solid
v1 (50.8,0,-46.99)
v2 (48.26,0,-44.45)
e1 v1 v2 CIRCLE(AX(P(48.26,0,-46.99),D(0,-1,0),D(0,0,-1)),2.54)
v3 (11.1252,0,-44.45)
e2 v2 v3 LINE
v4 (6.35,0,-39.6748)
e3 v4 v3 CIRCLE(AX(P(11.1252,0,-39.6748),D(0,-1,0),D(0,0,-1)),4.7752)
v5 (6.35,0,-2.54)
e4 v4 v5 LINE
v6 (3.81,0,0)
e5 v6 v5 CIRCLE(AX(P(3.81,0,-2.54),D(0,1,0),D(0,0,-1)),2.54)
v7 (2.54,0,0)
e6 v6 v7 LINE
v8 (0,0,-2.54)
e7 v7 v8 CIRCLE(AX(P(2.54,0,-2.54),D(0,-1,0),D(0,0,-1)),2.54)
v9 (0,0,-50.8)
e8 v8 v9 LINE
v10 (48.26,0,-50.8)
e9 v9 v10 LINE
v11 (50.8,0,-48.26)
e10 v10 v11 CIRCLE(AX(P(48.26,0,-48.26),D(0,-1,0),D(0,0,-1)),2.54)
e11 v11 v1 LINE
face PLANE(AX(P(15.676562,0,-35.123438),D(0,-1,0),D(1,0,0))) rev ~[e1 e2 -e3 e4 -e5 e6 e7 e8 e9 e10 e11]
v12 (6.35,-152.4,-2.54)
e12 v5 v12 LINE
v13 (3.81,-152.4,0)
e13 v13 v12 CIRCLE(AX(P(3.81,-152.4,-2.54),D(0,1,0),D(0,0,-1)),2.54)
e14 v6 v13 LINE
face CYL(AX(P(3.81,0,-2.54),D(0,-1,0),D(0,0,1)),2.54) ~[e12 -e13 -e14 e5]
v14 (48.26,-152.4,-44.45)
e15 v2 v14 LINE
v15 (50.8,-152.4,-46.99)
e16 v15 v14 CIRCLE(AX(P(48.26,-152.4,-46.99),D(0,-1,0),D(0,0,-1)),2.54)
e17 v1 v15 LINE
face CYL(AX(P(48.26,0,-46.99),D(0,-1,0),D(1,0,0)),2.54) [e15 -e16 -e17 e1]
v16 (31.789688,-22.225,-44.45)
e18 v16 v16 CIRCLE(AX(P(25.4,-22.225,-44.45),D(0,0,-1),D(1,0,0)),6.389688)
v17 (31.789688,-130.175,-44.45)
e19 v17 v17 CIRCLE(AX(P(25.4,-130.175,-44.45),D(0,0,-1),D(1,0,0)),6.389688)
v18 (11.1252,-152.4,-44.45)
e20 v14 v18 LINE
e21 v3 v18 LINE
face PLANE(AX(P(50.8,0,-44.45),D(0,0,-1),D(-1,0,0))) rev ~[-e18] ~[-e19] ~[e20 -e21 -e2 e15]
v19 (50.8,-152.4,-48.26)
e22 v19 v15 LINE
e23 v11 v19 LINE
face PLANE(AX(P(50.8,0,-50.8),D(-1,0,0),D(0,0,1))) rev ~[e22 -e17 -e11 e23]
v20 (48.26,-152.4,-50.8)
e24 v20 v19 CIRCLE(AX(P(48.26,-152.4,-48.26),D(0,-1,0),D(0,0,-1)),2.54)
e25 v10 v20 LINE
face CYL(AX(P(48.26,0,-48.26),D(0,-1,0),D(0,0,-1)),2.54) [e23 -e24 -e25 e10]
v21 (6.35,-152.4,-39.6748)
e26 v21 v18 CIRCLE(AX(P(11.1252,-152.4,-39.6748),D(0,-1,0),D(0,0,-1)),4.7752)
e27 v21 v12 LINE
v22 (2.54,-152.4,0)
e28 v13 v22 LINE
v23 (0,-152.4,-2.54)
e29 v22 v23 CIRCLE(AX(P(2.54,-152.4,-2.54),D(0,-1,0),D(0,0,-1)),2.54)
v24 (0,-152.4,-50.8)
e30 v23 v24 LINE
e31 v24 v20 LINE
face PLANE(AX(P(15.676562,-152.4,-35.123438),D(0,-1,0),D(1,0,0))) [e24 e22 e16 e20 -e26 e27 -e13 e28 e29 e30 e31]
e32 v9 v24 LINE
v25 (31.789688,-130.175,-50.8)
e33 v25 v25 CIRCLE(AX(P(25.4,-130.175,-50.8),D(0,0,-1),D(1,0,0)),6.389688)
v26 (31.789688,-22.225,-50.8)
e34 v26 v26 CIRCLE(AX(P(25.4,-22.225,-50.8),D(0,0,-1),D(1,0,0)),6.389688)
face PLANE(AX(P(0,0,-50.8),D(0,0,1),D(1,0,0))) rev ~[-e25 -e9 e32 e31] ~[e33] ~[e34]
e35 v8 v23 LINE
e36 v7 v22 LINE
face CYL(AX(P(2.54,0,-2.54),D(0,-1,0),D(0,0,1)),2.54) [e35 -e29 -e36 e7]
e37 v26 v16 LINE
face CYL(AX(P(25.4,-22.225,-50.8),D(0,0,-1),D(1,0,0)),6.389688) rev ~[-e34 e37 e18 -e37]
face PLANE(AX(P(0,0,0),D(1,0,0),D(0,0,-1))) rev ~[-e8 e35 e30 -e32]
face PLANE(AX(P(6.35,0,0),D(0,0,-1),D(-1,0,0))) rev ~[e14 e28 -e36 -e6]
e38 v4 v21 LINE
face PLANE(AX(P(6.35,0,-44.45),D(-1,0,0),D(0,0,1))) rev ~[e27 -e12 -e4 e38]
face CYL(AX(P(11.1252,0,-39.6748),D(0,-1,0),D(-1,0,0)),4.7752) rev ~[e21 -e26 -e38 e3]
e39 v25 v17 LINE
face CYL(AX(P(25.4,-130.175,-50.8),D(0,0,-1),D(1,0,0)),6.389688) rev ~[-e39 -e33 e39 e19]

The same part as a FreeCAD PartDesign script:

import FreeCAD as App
import Part
import Sketcher
from FreeCAD import Vector
Q = App.Units.Quantity


def edges_at(feature, points):
    """Names of the edges that pass closest to the given points."""
    edges = feature.Shape.Edges
    near = lambda p: min(range(len(edges)), key=lambda i: edges[i].distToShape(Part.Vertex(*p))[0])
    return sorted({f"Edge{near(p) + 1}" for p in points})

doc = App.newDocument("Part")
body = doc.addObject("PartDesign::Body", "Body")

sketch1 = body.newObject("Sketcher::SketchObject", "Sketch")
sketch1.AttachmentSupport = (doc.getObject("XZ_Plane"), [""])
sketch1.MapMode = "FlatFace"
sketch1.addGeometry(Part.LineSegment(Vector(6, 0, 0), Vector(0, 0, 0)), False)
sketch1.addGeometry(Part.LineSegment(Vector(0, 0, 0), Vector(0, -51, 0)), False)
sketch1.addGeometry(Part.LineSegment(Vector(0, -51, 0), Vector(51, -51, 0)), False)
sketch1.addGeometry(Part.LineSegment(Vector(51, -51, 0), Vector(51, -44, 0)), False)
sketch1.addGeometry(Part.LineSegment(Vector(51, -44, 0), Vector(6, -44, 0)), False)
sketch1.addGeometry(Part.LineSegment(Vector(6, -44, 0), Vector(6, 0, 0)), False)
sketch1.addConstraint(Sketcher.Constraint("Coincident", 0, 2, 1, 1))
sketch1.addConstraint(Sketcher.Constraint("Coincident", 1, 2, 2, 1))
sketch1.addConstraint(Sketcher.Constraint("Coincident", 2, 2, 3, 1))
sketch1.addConstraint(Sketcher.Constraint("Coincident", 3, 2, 4, 1))
sketch1.addConstraint(Sketcher.Constraint("Coincident", 4, 2, 5, 1))
sketch1.addConstraint(Sketcher.Constraint("Coincident", 5, 2, 0, 1))
sketch1.addConstraint(Sketcher.Constraint("Horizontal", 0))
sketch1.addConstraint(Sketcher.Constraint("Vertical", 1))
sketch1.addConstraint(Sketcher.Constraint("Horizontal", 2))
sketch1.addConstraint(Sketcher.Constraint("Vertical", 3))
sketch1.addConstraint(Sketcher.Constraint("Horizontal", 4))
sketch1.addConstraint(Sketcher.Constraint("Vertical", 5))
sketch1.addConstraint(Sketcher.Constraint("Coincident", 0, 2, -1, 1))
sketch1.addConstraint(Sketcher.Constraint("Equal", 2, 1))
sketch1.addConstraint(Sketcher.Constraint("Equal", 0, 3))
sketch1.addConstraint(Sketcher.Constraint("DistanceX", 2, 1, 2, 2, Q("2 in")))
sketch1.addConstraint(Sketcher.Constraint("DistanceX", 0, 2, 0, 1, Q("0.25 in")))
pad1 = body.newObject("PartDesign::Pad", "Pad")
pad1.Profile = sketch1
pad1.Length = Q("6 in")
doc.recompute()

fillet = body.newObject("PartDesign::Fillet", "Fillet")
fillet.Base = (pad1, edges_at(pad1, [
    (6.35, -76.2, 0),
    (0, -76.2, 0),
    (50.8, -76.2, -44.45),
    (50.8, -76.2, -50.8),
]))
fillet.Radius = Q("0.1 in")
doc.recompute()

fillet2 = body.newObject("PartDesign::Fillet", "Fillet001")
fillet2.Base = (fillet, edges_at(fillet, [(6.35, -76.2, -44.45)]))
fillet2.Radius = Q("0.188 in")

sketch2 = body.newObject("Sketcher::SketchObject", "Sketch001")
sketch2.AttachmentSupport = (doc.getObject("XY_Plane"), [""])
sketch2.MapMode = "FlatFace"
sketch2.AttachmentOffset = App.Placement(Vector(0, 0, -2 * 25.4), App.Rotation())
sketch2.addGeometry(Part.Circle(Vector(25, -130, 0), Vector(0, 0, 1), 6), False)
sketch2.addGeometry(Part.Circle(Vector(25, -22, 0), Vector(0, 0, 1), 6), False)
sketch2.addConstraint(Sketcher.Constraint("Equal", 0, 1))
sketch2.addConstraint(Sketcher.Constraint("Vertical", 0, 3, 1, 3))
sketch2.addConstraint(Sketcher.Constraint("DistanceX", -1, 1, 0, 3, Q("1 in")))
sketch2.addConstraint(Sketcher.Constraint("DistanceY", 0, 3, 1, 3, Q("4.25 in")))
sketch2.addConstraint(Sketcher.Constraint("DistanceY", 0, 3, -1, 1, Q("5.125 in")))
sketch2.addConstraint(Sketcher.Constraint("Diameter", 0, Q("12.779376 mm")))
pocket1 = body.newObject("PartDesign::Pocket", "Pocket")
pocket1.Profile = sketch2
pocket1.Length = Q("1 in")
pocket1.Reversed = True

doc.recompute()
